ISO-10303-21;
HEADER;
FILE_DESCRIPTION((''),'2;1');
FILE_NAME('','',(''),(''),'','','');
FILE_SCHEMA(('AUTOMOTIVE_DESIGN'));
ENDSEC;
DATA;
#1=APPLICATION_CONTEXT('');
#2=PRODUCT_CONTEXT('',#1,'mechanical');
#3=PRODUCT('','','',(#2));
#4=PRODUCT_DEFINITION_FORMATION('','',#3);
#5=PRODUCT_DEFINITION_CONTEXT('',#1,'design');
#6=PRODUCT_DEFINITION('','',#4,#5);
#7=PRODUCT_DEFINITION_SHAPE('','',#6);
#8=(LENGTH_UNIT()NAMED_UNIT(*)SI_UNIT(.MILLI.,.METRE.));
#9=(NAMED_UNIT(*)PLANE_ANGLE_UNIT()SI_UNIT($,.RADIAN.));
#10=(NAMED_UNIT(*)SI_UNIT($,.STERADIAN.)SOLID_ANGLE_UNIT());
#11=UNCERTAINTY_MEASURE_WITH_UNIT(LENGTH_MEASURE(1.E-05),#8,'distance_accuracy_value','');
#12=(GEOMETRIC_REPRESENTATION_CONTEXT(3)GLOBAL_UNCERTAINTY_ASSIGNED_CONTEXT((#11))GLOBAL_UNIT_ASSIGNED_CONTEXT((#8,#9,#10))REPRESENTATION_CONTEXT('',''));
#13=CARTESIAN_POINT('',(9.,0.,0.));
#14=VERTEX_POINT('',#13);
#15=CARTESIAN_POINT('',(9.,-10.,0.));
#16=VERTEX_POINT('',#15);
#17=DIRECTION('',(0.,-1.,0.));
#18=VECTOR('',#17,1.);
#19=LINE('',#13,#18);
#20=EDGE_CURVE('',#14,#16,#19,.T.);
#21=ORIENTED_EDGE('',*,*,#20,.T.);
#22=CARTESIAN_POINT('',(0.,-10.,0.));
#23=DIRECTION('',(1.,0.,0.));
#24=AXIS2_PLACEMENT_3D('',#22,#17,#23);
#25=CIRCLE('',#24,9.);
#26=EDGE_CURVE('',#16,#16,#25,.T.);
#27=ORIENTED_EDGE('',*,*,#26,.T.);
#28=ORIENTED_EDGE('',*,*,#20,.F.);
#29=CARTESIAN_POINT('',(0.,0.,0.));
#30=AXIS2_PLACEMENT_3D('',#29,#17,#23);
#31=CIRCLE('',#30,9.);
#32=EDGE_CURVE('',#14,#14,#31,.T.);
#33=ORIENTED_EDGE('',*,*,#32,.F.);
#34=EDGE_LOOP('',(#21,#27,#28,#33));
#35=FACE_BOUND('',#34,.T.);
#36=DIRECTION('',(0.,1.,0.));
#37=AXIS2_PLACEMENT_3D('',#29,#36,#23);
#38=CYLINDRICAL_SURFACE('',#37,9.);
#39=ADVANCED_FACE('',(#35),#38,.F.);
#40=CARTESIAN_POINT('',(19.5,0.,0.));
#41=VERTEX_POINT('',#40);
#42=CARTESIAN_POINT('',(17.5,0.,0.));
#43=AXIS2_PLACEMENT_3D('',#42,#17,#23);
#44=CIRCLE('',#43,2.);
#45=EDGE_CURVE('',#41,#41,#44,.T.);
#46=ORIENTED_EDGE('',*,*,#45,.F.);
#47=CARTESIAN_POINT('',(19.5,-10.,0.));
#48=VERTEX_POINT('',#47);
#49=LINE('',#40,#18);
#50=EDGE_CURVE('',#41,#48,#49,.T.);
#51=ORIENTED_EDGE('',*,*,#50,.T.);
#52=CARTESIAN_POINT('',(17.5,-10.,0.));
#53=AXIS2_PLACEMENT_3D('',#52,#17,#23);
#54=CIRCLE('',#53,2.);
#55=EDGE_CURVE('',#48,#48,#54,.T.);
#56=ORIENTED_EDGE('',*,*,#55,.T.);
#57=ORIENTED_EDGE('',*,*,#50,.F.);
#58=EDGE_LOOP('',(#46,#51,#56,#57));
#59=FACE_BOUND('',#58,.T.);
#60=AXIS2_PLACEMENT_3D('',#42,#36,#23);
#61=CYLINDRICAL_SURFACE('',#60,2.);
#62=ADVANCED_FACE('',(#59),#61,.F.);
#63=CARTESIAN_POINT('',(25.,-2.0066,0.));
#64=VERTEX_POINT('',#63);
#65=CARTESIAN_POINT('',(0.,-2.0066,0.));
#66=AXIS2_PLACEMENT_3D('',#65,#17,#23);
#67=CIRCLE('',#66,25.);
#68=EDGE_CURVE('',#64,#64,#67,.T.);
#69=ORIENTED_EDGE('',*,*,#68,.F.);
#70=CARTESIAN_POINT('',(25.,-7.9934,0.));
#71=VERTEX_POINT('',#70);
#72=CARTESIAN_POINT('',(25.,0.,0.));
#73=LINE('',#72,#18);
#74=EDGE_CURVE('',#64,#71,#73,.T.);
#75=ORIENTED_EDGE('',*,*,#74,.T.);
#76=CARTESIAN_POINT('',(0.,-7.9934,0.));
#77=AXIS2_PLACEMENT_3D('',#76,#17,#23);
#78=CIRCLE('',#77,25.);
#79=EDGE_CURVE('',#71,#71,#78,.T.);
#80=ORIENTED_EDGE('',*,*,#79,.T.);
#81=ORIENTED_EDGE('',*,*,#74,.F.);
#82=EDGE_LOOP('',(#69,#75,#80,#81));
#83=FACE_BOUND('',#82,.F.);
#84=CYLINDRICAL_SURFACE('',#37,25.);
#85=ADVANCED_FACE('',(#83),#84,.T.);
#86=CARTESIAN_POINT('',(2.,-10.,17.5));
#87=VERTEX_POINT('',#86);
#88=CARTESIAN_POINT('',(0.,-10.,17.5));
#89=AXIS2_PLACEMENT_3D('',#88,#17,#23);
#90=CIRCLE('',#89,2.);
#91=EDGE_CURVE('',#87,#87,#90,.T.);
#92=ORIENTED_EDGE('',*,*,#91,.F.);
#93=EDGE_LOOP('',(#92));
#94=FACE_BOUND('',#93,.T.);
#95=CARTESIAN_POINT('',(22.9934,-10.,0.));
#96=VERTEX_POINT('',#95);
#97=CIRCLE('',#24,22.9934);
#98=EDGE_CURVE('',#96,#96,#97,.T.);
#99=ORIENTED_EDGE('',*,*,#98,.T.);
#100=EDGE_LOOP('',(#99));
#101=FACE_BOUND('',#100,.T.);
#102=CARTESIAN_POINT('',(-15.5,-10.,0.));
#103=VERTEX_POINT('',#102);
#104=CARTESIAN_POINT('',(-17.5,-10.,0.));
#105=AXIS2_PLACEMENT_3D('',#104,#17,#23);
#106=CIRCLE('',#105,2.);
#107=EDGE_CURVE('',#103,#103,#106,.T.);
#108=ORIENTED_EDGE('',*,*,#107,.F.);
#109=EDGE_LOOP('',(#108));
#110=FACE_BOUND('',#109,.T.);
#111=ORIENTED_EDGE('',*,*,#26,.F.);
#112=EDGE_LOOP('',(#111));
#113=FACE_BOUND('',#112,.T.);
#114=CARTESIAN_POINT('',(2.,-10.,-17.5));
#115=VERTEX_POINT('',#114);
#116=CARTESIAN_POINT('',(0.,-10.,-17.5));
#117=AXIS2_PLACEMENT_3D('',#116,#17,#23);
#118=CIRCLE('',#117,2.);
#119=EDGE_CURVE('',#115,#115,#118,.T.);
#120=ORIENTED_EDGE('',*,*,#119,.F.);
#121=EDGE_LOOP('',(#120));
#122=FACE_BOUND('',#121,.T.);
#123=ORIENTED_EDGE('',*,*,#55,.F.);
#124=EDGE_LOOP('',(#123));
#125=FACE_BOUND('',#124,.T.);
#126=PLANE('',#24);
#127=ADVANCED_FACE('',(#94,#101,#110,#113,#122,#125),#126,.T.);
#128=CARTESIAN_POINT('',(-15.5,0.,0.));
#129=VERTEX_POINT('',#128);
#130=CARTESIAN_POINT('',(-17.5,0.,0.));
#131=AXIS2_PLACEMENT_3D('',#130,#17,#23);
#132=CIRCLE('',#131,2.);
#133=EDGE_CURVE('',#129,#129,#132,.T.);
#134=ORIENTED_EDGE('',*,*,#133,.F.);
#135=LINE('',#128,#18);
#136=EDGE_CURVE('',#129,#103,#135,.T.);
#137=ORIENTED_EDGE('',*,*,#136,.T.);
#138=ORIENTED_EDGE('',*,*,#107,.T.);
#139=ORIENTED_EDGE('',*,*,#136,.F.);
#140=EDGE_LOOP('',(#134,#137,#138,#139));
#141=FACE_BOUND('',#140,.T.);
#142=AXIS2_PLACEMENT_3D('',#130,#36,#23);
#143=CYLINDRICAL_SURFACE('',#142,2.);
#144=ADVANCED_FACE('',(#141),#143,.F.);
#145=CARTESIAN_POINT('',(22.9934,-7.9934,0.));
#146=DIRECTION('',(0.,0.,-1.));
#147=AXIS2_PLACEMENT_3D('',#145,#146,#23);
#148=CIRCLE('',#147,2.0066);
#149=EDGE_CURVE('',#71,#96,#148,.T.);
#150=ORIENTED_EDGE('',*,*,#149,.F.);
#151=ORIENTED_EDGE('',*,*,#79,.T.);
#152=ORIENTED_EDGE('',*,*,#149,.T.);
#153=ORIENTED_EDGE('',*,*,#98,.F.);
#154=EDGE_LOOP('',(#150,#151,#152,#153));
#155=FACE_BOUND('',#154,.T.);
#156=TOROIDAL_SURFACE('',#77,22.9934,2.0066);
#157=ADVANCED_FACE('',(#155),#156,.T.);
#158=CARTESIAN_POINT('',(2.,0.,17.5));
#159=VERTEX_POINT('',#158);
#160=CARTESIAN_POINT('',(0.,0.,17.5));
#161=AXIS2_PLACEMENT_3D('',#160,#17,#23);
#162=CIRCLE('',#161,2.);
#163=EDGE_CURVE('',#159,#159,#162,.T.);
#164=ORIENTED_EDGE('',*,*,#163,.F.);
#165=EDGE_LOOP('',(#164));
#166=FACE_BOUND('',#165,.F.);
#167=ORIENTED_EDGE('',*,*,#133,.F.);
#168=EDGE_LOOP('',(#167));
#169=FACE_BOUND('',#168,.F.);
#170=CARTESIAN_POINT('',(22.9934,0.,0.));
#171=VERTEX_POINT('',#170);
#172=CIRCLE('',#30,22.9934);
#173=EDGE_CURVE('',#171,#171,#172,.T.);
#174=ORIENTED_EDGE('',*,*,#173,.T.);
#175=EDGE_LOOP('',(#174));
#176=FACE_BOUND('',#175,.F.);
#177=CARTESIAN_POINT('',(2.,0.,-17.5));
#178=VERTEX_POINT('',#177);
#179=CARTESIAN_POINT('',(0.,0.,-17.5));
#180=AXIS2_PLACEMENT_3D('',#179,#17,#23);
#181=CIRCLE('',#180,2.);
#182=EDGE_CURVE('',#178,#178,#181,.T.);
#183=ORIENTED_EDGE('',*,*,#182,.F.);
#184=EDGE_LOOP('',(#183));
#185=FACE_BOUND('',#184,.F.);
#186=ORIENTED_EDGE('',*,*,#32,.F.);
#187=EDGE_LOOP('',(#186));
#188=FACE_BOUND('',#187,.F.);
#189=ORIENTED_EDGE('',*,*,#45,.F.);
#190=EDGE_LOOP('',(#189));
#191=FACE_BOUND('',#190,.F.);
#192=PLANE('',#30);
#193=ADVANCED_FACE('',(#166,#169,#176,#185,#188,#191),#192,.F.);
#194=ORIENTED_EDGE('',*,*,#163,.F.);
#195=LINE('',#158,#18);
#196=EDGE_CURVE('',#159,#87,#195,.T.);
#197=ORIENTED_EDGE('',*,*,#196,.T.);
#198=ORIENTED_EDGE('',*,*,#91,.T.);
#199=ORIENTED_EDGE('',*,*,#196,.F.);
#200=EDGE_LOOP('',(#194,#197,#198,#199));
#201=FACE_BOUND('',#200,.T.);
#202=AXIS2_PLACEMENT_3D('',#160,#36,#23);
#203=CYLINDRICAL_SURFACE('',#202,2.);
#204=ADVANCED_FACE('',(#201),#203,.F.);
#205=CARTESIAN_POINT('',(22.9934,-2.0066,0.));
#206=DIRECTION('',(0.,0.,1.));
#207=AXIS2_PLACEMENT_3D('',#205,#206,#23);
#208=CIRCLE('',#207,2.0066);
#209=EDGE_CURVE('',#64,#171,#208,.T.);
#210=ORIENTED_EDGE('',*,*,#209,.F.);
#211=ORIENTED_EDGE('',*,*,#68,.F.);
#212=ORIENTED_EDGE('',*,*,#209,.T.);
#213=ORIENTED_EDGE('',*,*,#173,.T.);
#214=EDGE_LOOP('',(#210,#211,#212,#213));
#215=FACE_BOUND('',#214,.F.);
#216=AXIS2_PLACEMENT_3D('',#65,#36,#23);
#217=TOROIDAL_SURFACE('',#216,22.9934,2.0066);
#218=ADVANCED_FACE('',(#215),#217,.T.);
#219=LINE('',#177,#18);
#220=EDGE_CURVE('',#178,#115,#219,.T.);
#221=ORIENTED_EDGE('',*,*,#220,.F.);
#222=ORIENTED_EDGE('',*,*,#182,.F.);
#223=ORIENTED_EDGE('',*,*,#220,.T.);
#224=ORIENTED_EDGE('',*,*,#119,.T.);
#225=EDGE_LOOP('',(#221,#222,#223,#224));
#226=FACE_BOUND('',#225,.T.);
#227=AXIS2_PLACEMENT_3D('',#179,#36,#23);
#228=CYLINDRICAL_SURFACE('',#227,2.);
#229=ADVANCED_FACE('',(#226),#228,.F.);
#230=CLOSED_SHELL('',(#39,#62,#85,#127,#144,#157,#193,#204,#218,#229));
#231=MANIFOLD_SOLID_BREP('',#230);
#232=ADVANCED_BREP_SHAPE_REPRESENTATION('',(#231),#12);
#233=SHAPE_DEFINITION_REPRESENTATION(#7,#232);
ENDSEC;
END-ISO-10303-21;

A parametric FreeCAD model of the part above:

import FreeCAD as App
import Part
import Sketcher


def edges_at(feature, points):
    """Names of the edges that pass closest to the given points."""
    edges = feature.Shape.Edges
    near = lambda p: min(range(len(edges)), key=lambda i: edges[i].distToShape(Part.Vertex(*p))[0])
    return sorted({f"Edge{near(p) + 1}" for p in points})

doc = App.newDocument("Part")
body = doc.addObject("PartDesign::Body", "Body")

sketch1 = body.newObject("Sketcher::SketchObject", "Sketch")
sketch1.AttachmentSupport = (doc.getObject("XZ_Plane"), [""])
sketch1.MapMode = "FlatFace"
sketch1.addGeometry(Part.Circle(App.Vector(0, 0, 0), App.Vector(0, 0, 1), 25), False)
sketch1.addGeometry(Part.Circle(App.Vector(0, -17.5, 0), App.Vector(0, 0, 1), 2), False)
sketch1.addGeometry(Part.Circle(App.Vector(-17.5, 0, 0), App.Vector(0, 0, 1), 2), False)
sketch1.addGeometry(Part.Circle(App.Vector(0, 0, 0), App.Vector(0, 0, 1), 9), False)
sketch1.addGeometry(Part.Circle(App.Vector(17.5, 0, 0), App.Vector(0, 0, 1), 2), False)
sketch1.addGeometry(Part.Circle(App.Vector(0, 17.5, 0), App.Vector(0, 0, 1), 2), False)
sketch1.addConstraint(Sketcher.Constraint("Coincident", 0, 3, -1, 1))
sketch1.addConstraint(Sketcher.Constraint("Coincident", 3, 3, -1, 1))
sketch1.addConstraint(Sketcher.Constraint("Equal", 1, 2))
sketch1.addConstraint(Sketcher.Constraint("Equal", 2, 4))
sketch1.addConstraint(Sketcher.Constraint("Equal", 4, 5))
sketch1.addConstraint(Sketcher.Constraint("Symmetric", 2, 3, 4, 3, -1, 1))
sketch1.addConstraint(Sketcher.Constraint("Symmetric", 1, 3, 5, 3, -1, 1))
sketch1.addConstraint(Sketcher.Constraint("PointOnObject", 1, 3, -2))
sketch1.addConstraint(Sketcher.Constraint("PointOnObject", 2, 3, -1))
sketch1.addConstraint(Sketcher.Constraint("Diameter", 0, 50.0))
sketch1.addConstraint(Sketcher.Constraint("Diameter", 1, 4.0))
sketch1.addConstraint(Sketcher.Constraint("Diameter", 3, 18.0))
sketch1.addConstraint(Sketcher.Constraint("DistanceX", 2, 3, 4, 3, 35.0))
sketch1.addConstraint(Sketcher.Constraint("DistanceY", 1, 3, 5, 3, 35.0))
pad1 = body.newObject("PartDesign::Pad", "Pad")
pad1.Profile = sketch1
pad1.Length = 10
doc.recompute()

fillet = body.newObject("PartDesign::Fillet", "Fillet")
fillet.Base = (pad1, edges_at(pad1, [(25, -5, 0), (-25, 0, 0), (-25, -10, 0)]))
fillet.Radius = 2.0066

doc.recompute()
